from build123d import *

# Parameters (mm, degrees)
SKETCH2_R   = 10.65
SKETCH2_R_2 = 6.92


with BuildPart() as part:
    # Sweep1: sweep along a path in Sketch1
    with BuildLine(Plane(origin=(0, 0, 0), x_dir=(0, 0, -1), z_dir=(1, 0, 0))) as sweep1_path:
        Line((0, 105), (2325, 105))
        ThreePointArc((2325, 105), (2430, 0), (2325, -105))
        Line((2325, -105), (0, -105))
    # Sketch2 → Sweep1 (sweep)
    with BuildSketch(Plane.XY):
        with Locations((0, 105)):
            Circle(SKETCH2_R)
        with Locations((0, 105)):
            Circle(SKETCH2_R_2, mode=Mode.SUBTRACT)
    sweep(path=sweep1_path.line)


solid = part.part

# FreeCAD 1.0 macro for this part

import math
import FreeCAD as App
import Part
import Sketcher
Q = App.Units.Quantity

doc = App.newDocument("Part")
body = doc.addObject("PartDesign::Body", "Body")

# Sketch on XY plane
sketch1 = doc.addObject("Sketcher::SketchObject", "Sketch")
body.addObject(sketch1)
sketch1.AttachmentSupport = (doc.XY_Plane, [""])
sketch1.MapMode = "FlatFace"
sketch1.addGeometry([
    Part.Circle(App.Vector(0, 105, 0), App.Vector(0, 0, 1), 11),
    Part.Circle(App.Vector(0, 105, 0), App.Vector(0, 0, 1), 7),
], False)
sketch1.addConstraint([
    Sketcher.Constraint("Coincident", 1, 3, 0, 3),
    Sketcher.Constraint("PointOnObject", 0, 3, -2),
    Sketcher.Constraint("Diameter", 0, Q("21.3 mm")),
    Sketcher.Constraint("Diameter", 1, Q("13.84 mm")),
    Sketcher.Constraint("DistanceY", -1, 1, 0, 3, Q("105 mm")),
])

# Sketch on YZ plane
sketch2 = doc.addObject("Sketcher::SketchObject", "Sketch001")
body.addObject(sketch2)
sketch2.AttachmentSupport = (doc.YZ_Plane, [""])
sketch2.MapMode = "FlatFace"
sketch2.addGeometry([
    Part.LineSegment(App.Vector(105, 0, 0), App.Vector(105, -2325, 0)),
    Part.ArcOfCircle(Part.Circle(App.Vector(0, -2325, 0), App.Vector(0, 0, 1), 105), math.radians(180), math.radians(360)),
    Part.LineSegment(App.Vector(-105, -2325, 0), App.Vector(-105, 0, 0)),
], False)
sketch2.addConstraint([
    Sketcher.Constraint("Tangent", 0, 2, 1, 2),
    Sketcher.Constraint("Tangent", 1, 1, 2, 1),
    Sketcher.Constraint("Vertical", 0),
    Sketcher.Constraint("Vertical", 2),
    Sketcher.Constraint("Symmetric", 0, 1, 2, 2, -1, 1),
    Sketcher.Constraint("PointOnObject", 0, 1, -1),
    Sketcher.Constraint("Radius", 1, Q("105 mm")),
    Sketcher.Constraint("DistanceY", 0, 2, 0, 1, Q("2325 mm")),
])
doc.recompute()

additivepipe = doc.addObject("PartDesign::AdditivePipe", "AdditivePipe")
body.addObject(additivepipe)
additivepipe.Profile = sketch1
additivepipe.Spine = (sketch2, ["Edge1", "Edge2", "Edge3"])

doc.recompute()
